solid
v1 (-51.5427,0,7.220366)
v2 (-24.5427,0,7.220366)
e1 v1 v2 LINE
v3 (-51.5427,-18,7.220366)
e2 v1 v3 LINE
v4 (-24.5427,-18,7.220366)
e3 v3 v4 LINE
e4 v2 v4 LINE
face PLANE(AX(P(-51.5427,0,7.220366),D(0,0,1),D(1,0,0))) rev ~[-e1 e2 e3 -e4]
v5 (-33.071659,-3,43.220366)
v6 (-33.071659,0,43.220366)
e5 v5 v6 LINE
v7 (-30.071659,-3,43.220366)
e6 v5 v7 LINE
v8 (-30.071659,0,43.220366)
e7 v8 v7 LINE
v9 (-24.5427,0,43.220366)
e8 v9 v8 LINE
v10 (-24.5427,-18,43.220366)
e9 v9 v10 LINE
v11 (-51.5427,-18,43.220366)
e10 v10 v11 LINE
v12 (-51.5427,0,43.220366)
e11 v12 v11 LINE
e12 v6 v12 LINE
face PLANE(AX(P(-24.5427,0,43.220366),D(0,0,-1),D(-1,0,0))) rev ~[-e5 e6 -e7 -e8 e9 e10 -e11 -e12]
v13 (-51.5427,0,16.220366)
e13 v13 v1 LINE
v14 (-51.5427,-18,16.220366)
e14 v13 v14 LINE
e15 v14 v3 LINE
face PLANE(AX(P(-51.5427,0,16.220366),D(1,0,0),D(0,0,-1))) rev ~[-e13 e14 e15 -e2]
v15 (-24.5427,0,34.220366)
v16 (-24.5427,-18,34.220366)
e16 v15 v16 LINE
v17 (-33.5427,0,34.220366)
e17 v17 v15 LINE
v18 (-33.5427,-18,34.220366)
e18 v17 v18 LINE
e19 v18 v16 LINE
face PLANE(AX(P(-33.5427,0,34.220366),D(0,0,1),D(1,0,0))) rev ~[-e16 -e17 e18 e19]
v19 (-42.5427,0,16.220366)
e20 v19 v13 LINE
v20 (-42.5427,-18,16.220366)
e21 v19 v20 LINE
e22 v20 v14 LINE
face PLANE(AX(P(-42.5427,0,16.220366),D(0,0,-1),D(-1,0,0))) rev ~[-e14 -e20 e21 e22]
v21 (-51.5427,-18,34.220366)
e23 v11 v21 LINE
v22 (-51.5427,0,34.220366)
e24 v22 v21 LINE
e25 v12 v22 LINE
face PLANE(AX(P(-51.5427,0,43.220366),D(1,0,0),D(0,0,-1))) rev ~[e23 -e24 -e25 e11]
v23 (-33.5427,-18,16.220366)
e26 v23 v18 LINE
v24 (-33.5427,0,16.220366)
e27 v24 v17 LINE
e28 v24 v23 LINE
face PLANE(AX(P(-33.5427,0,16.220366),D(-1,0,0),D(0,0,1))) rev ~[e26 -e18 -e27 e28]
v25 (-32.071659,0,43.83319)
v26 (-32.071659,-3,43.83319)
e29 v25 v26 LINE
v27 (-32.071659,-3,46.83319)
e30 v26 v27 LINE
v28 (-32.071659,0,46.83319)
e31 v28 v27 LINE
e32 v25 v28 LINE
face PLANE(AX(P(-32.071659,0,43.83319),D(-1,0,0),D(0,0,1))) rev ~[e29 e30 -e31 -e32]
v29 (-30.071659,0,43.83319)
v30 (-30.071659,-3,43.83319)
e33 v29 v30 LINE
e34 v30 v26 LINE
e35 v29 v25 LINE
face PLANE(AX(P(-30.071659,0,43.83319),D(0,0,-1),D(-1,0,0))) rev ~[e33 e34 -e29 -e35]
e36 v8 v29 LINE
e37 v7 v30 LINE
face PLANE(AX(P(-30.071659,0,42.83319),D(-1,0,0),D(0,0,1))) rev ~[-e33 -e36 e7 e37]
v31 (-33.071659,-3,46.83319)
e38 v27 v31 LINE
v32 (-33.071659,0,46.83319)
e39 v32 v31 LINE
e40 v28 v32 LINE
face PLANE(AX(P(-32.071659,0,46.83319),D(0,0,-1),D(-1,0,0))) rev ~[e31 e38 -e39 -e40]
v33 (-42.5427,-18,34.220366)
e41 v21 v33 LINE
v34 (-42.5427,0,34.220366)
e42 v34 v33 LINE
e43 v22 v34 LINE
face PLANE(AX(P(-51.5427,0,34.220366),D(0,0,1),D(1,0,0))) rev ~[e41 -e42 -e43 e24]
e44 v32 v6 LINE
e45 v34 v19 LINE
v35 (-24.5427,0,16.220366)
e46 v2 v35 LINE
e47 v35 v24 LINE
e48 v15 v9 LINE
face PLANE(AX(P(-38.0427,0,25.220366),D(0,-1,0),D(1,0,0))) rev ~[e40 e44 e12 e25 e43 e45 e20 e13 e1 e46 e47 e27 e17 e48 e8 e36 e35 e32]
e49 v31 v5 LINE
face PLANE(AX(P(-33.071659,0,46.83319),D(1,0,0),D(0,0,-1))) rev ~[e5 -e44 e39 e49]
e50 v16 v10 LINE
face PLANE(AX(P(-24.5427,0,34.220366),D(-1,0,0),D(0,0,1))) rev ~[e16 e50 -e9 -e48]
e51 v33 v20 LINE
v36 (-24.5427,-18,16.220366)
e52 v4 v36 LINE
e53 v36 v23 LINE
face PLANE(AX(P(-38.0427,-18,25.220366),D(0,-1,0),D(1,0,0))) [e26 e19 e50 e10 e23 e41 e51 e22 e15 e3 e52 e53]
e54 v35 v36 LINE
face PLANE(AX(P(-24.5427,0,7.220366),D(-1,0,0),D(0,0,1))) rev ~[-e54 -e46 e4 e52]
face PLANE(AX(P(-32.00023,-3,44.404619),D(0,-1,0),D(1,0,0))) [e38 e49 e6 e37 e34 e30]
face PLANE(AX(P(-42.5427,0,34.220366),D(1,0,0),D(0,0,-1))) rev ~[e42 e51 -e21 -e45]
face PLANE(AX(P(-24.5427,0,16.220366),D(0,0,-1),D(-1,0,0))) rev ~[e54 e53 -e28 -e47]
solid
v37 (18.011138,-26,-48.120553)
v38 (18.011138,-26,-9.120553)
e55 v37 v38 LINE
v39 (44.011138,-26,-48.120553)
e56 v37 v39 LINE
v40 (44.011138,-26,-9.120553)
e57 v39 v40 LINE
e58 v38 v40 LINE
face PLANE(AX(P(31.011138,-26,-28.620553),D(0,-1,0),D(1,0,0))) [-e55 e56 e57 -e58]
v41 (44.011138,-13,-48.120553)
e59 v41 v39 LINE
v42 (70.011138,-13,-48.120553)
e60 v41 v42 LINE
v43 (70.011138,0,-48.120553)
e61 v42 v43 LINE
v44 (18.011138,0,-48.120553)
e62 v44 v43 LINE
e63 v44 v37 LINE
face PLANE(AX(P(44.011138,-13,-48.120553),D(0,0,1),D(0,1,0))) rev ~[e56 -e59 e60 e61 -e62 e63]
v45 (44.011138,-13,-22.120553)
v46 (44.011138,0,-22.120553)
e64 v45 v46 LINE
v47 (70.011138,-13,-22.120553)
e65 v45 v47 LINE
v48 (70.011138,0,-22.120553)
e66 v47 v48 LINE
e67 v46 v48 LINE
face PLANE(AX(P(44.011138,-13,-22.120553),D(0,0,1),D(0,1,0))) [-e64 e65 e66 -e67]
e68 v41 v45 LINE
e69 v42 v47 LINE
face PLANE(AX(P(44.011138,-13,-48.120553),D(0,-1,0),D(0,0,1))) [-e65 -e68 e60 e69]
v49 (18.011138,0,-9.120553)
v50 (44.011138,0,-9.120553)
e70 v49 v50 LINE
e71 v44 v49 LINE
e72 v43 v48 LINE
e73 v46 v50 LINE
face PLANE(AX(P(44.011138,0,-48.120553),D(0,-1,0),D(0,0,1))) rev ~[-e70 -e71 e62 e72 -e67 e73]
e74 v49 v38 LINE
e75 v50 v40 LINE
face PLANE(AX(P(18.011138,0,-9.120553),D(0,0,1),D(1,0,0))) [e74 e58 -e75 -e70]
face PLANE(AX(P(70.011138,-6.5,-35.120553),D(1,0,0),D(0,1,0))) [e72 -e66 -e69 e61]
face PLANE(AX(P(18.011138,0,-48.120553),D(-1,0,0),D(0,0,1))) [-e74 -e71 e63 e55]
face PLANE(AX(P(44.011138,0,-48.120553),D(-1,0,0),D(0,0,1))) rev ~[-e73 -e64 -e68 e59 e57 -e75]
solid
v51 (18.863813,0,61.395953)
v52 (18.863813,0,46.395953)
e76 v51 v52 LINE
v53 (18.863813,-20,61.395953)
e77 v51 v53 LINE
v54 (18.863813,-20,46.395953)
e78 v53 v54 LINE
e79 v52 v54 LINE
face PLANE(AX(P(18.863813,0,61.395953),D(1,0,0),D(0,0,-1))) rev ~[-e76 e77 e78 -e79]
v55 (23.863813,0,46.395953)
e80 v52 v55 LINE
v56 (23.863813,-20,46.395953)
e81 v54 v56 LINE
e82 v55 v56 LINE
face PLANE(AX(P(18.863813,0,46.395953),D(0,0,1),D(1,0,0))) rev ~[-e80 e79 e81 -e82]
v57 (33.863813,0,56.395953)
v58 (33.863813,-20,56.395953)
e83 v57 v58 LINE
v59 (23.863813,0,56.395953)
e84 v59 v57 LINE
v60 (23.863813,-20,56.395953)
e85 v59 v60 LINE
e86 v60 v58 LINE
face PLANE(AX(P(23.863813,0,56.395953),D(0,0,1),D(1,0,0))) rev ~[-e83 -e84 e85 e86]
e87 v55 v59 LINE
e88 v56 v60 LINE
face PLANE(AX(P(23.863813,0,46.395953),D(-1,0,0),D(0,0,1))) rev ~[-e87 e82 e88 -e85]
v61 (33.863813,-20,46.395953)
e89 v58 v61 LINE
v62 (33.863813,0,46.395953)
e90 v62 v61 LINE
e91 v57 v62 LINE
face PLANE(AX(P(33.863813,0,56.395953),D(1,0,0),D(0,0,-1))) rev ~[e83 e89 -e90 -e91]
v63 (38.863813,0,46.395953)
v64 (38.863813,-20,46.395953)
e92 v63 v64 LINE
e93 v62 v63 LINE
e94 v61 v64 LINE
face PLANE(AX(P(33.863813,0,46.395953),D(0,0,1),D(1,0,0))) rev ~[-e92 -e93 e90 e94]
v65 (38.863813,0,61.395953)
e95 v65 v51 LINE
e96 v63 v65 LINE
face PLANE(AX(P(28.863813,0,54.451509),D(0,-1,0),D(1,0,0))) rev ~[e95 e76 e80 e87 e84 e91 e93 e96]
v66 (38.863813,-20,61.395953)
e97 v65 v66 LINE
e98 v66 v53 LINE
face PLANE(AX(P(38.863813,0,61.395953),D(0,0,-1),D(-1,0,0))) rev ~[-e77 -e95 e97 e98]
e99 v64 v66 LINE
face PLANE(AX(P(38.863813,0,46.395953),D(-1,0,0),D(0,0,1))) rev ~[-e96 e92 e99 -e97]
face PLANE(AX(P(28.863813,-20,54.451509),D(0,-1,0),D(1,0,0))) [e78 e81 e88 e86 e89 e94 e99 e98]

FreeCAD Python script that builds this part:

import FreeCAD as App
import Part
import Sketcher


def add_polygon(sketch, points):
    """Adds a closed chain of lines whose ends are joined by coincident constraints."""
    first, n = sketch.GeometryCount, len(points)
    for a, b in zip(points, points[1:] + points[:1]):
        sketch.addGeometry(Part.LineSegment(App.Vector(*a, 0), App.Vector(*b, 0)), False)
    for i in range(n):
        sketch.addConstraint(Sketcher.Constraint("Coincident", first + i, 2, first + (i + 1) % n, 1))

doc = App.newDocument("Part")
body = doc.addObject("PartDesign::Body", "Body")

sketch1 = body.newObject("Sketcher::SketchObject", "Sketch")
sketch1.AttachmentSupport = (doc.getObject("XZ_Plane"), [""])
sketch1.MapMode = "FlatFace"
add_polygon(sketch1, [(-32.1, 46.8), (-33.1, 46.8), (-33.1, 42.8), (-30.1, 42.8), (-30.1, 43.8), (-32.1, 43.8)])
sketch1.addConstraint([
    Sketcher.Constraint("Horizontal", 0),
    Sketcher.Constraint("Vertical", 1),
    Sketcher.Constraint("Horizontal", 2),
    Sketcher.Constraint("Vertical", 3),
    Sketcher.Constraint("Horizontal", 4),
    Sketcher.Constraint("Vertical", 5),
    Sketcher.Constraint("Equal", 0, 3),
    Sketcher.Constraint("Equal", 2, 5),
    Sketcher.Constraint("DistanceX", 0, 2, 0, 1, 1.0),
    Sketcher.Constraint("DistanceX", 2, 1, 2, 2, 3.0),
    Sketcher.Constraint("DistanceX", 0, 2, -1, 1, 33.071659),
    Sketcher.Constraint("DistanceY", -1, 1, 0, 2, 46.83319),
])
pad1 = body.newObject("PartDesign::Pad", "Pad")
pad1.Profile = sketch1
pad1.Length = 3

sketch2 = body.newObject("Sketcher::SketchObject", "Sketch001")
sketch2.AttachmentSupport = (doc.getObject("XZ_Plane"), [""])
sketch2.MapMode = "FlatFace"
add_polygon(sketch2, [(-25, 43), (-52, 43), (-52, 34), (-43, 34), (-43, 16), (-52, 16), (-52, 7), (-25, 7), (-25, 16), (-34, 16), (-34, 34), (-25, 34)])
sketch2.addConstraint([
    Sketcher.Constraint("Horizontal", 0),
    Sketcher.Constraint("Vertical", 1),
    Sketcher.Constraint("Horizontal", 2),
    Sketcher.Constraint("Vertical", 3),
    Sketcher.Constraint("Horizontal", 4),
    Sketcher.Constraint("Vertical", 5),
    Sketcher.Constraint("Horizontal", 6),
    Sketcher.Constraint("Vertical", 7),
    Sketcher.Constraint("Horizontal", 8),
    Sketcher.Constraint("Vertical", 9),
    Sketcher.Constraint("Horizontal", 10),
    Sketcher.Constraint("Vertical", 11),
    Sketcher.Constraint("Horizontal", 4, 2, 7, 2),
    Sketcher.Constraint("Horizontal", 2, 2, 9, 2),
    Sketcher.Constraint("Vertical", 1, 2, 4, 2),
    Sketcher.Constraint("Vertical", 7, 2, 10, 2),
    Sketcher.Constraint("Equal", 4, 8),
    Sketcher.Constraint("Equal", 10, 1),
    Sketcher.Constraint("Equal", 1, 5),
    Sketcher.Constraint("DistanceX", 0, 2, 0, 1, 27.0),
    Sketcher.Constraint("DistanceX", 2, 1, 2, 2, 9.0),
    Sketcher.Constraint("DistanceY", 3, 2, 3, 1, 18.0),
    Sketcher.Constraint("DistanceX", 0, 2, -1, 1, 51.5427),
    Sketcher.Constraint("DistanceY", -1, 1, 0, 2, 43.220366),
])
pad2 = body.newObject("PartDesign::Pad", "Pad001")
pad2.Profile = sketch2
pad2.Length = 18
body2 = doc.addObject("PartDesign::Body", "Body001")

sketch3 = body2.newObject("Sketcher::SketchObject", "Sketch002")
sketch3.AttachmentSupport = (doc.getObject("XZ_Plane001"), [""])
sketch3.MapMode = "FlatFace"
add_polygon(sketch3, [(19, 61), (19, 46), (24, 46), (24, 56), (34, 56), (34, 46), (39, 46), (39, 61)])
sketch3.addConstraint([
    Sketcher.Constraint("Vertical", 0),
    Sketcher.Constraint("Horizontal", 1),
    Sketcher.Constraint("Vertical", 2),
    Sketcher.Constraint("Horizontal", 3),
    Sketcher.Constraint("Vertical", 4),
    Sketcher.Constraint("Horizontal", 5),
    Sketcher.Constraint("Vertical", 6),
    Sketcher.Constraint("Horizontal", 7),
    Sketcher.Constraint("Horizontal", 1, 2, 4, 2),
    Sketcher.Constraint("Equal", 1, 5),
    Sketcher.Constraint("Equal", 3, 2),
    Sketcher.Constraint("DistanceX", 1, 1, 1, 2, 5.0),
    Sketcher.Constraint("DistanceX", 3, 1, 3, 2, 10.0),
    Sketcher.Constraint("DistanceY", 0, 2, 0, 1, 15.0),
    Sketcher.Constraint("DistanceX", -1, 1, 0, 2, 18.863813),
    Sketcher.Constraint("DistanceY", -1, 1, 0, 2, 46.395953),
])
pad3 = body2.newObject("PartDesign::Pad", "Pad002")
pad3.Profile = sketch3
pad3.Length = 20
body3 = doc.addObject("PartDesign::Body", "Body002")

sketch4 = body3.newObject("Sketcher::SketchObject", "Sketch003")
sketch4.AttachmentSupport = (doc.getObject("XZ_Plane002"), [""])
sketch4.MapMode = "FlatFace"
add_polygon(sketch4, [(18, -9), (18, -48), (44, -48), (44, -9)])
sketch4.addConstraint([
    Sketcher.Constraint("Vertical", 0),
    Sketcher.Constraint("Horizontal", 1),
    Sketcher.Constraint("Vertical", 2),
    Sketcher.Constraint("Horizontal", 3),
    Sketcher.Constraint("DistanceX", 1, 1, 1, 2, 26.0),
    Sketcher.Constraint("DistanceY", 0, 2, 0, 1, 39.0),
    Sketcher.Constraint("DistanceX", -1, 1, 1, 2, 44.011138),
    Sketcher.Constraint("DistanceY", 0, 2, -1, 1, 48.120553),
])
pad4 = body3.newObject("PartDesign::Pad", "Pad003")
pad4.Profile = sketch4
pad4.Length = 26

sketch5 = body3.newObject("Sketcher::SketchObject", "Sketch004")
sketch5.AttachmentSupport = (doc.getObject("YZ_Plane002"), [""])
sketch5.MapMode = "FlatFace"
sketch5.AttachmentOffset = App.Placement(App.Vector(0, 0, 44.011138), App.Rotation())
add_polygon(sketch5, [(-13, -22), (-13, -48), (0, -48), (0, -22)])
sketch5.addConstraint([
    Sketcher.Constraint("Vertical", 0),
    Sketcher.Constraint("Horizontal", 1),
    Sketcher.Constraint("Vertical", 2),
    Sketcher.Constraint("Horizontal", 3),
    Sketcher.Constraint("PointOnObject", 1, 2, -2),
    Sketcher.Constraint("DistanceX", 1, 1, 1, 2, 13.0),
    Sketcher.Constraint("DistanceY", 0, 2, 0, 1, 26.0),
    Sketcher.Constraint("DistanceY", 0, 2, -1, 1, 48.120553),
])
pad5 = body3.newObject("PartDesign::Pad", "Pad004")
pad5.Profile = sketch5
pad5.Length = 26

doc.recompute()
